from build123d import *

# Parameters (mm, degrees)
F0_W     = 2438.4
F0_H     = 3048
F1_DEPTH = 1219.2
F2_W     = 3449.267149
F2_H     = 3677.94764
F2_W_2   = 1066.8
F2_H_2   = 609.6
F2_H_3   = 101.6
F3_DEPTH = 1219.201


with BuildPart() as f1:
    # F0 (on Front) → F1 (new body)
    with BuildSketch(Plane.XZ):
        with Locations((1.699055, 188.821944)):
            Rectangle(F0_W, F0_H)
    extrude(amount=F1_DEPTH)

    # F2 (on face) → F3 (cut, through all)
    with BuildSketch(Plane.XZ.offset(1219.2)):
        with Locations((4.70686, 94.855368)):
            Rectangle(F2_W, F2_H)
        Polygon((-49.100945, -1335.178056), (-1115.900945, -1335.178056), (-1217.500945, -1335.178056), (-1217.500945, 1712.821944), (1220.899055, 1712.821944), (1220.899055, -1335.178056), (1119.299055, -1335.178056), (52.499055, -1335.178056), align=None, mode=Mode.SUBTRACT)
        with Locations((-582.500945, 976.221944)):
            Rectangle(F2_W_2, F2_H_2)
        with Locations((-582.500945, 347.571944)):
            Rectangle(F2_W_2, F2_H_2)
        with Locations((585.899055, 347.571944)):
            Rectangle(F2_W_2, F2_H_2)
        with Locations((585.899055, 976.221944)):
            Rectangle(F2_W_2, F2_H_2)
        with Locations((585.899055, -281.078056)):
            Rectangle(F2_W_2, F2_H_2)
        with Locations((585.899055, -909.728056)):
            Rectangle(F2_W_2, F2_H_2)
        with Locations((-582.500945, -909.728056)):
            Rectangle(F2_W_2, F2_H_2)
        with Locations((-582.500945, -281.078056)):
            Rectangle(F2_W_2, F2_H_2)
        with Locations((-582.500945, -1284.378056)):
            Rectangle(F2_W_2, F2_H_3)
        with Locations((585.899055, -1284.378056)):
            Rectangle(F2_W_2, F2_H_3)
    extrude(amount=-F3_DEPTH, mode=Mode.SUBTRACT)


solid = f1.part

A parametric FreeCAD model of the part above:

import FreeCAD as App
import Part
import Sketcher

V = App.Vector
Q = App.Units.Quantity

doc = App.newDocument("Part")
params = doc.addObject("Spreadsheet::Sheet", "Params")
for row, (alias, value) in enumerate([
    ("sketch1_width", "96 in"),
    ("sketch1_height", "120 in"),
    ("pad1_length", "48 in"),
    ("sketch2_width", "4 in"),
    ("sketch2_width2", "42 in"),
    ("sketch2_height", "120 in"),
    ("sketch2_height2", "24 in"),
], start=1):
    params.set(f"A{row}", alias)
    params.set(f"B{row}", "=" + value)
    params.setAlias(f"B{row}", alias)

body = doc.addObject("PartDesign::Body", "Body")

# Sketch on XZ plane
sketch1 = body.newObject("Sketcher::SketchObject", "Sketch")
sketch1.AttachmentSupport = (doc.getObject("XZ_Plane"), [""])
sketch1.MapMode = "FlatFace"
sketch1.addGeometry(Part.LineSegment(V(-1218, 1713, 0), V(-1218, -1335, 0)), False)
sketch1.addGeometry(Part.LineSegment(V(-1218, -1335, 0), V(1221, -1335, 0)), False)
sketch1.addGeometry(Part.LineSegment(V(1221, -1335, 0), V(1221, 1713, 0)), False)
sketch1.addGeometry(Part.LineSegment(V(1221, 1713, 0), V(-1218, 1713, 0)), False)
sketch1.addConstraint(Sketcher.Constraint("Coincident", 0, 2, 1, 1))
sketch1.addConstraint(Sketcher.Constraint("Coincident", 1, 2, 2, 1))
sketch1.addConstraint(Sketcher.Constraint("Coincident", 2, 2, 3, 1))
sketch1.addConstraint(Sketcher.Constraint("Coincident", 3, 2, 0, 1))
sketch1.addConstraint(Sketcher.Constraint("Vertical", 0))
sketch1.addConstraint(Sketcher.Constraint("Horizontal", 1))
sketch1.addConstraint(Sketcher.Constraint("Vertical", 2))
sketch1.addConstraint(Sketcher.Constraint("Horizontal", 3))
sketch1.addConstraint(Sketcher.Constraint("DistanceX", 1, 1, 1, 2, Q("96 in")))
sketch1.addConstraint(Sketcher.Constraint("DistanceY", 0, 2, 0, 1, Q("120 in")))
sketch1.addConstraint(Sketcher.Constraint("DistanceX", 0, 2, -1, 1, Q("1217.500945 mm")))
sketch1.addConstraint(Sketcher.Constraint("DistanceY", 0, 2, -1, 1, Q("1335.178056 mm")))
sketch1.setExpression("Constraints[8]", "Params.sketch1_width")
sketch1.setExpression("Constraints[9]", "Params.sketch1_height")
pad1 = body.newObject("PartDesign::Pad", "Pad")
pad1.Profile = sketch1
pad1.setExpression("Length", "Params.pad1_length")

# Sketch on XZ plane
sketch2 = body.newObject("Sketcher::SketchObject", "Sketch001")
sketch2.AttachmentSupport = (doc.getObject("XZ_Plane"), [""])
sketch2.MapMode = "FlatFace"
sketch2.AttachmentOffset = App.Placement(V(0, 0, 48 * 25.4), App.Rotation())
sketch2.addGeometry(Part.LineSegment(V(-1720, 1934, 0), V(-1720, -1744, 0)), False)
sketch2.addGeometry(Part.LineSegment(V(-1720, -1744, 0), V(1729, -1744, 0)), False)
sketch2.addGeometry(Part.LineSegment(V(1729, -1744, 0), V(1729, 1934, 0)), False)
sketch2.addGeometry(Part.LineSegment(V(1729, 1934, 0), V(-1720, 1934, 0)), False)
sketch2.addGeometry(Part.LineSegment(V(1221, -1335, 0), V(1119, -1335, 0)), False)
sketch2.addGeometry(Part.LineSegment(V(1119, -1335, 0), V(1119, -1234, 0)), False)
sketch2.addGeometry(Part.LineSegment(V(1119, -1234, 0), V(52, -1234, 0)), False)
sketch2.addGeometry(Part.LineSegment(V(52, -1234, 0), V(52, -1335, 0)), False)
sketch2.addGeometry(Part.LineSegment(V(52, -1335, 0), V(-49, -1335, 0)), False)
sketch2.addGeometry(Part.LineSegment(V(-49, -1335, 0), V(-49, -1234, 0)), False)
sketch2.addGeometry(Part.LineSegment(V(-49, -1234, 0), V(-1116, -1234, 0)), False)
sketch2.addGeometry(Part.LineSegment(V(-1116, -1234, 0), V(-1116, -1335, 0)), False)
sketch2.addGeometry(Part.LineSegment(V(-1116, -1335, 0), V(-1218, -1335, 0)), False)
sketch2.addGeometry(Part.LineSegment(V(-1218, -1335, 0), V(-1218, 1713, 0)), False)
sketch2.addGeometry(Part.LineSegment(V(-1218, 1713, 0), V(1221, 1713, 0)), False)
sketch2.addGeometry(Part.LineSegment(V(1221, 1713, 0), V(1221, -1335, 0)), False)
sketch2.addGeometry(Part.LineSegment(V(-1116, 1281, 0), V(-1116, 671, 0)), False)
sketch2.addGeometry(Part.LineSegment(V(-1116, 671, 0), V(-49, 671, 0)), False)
sketch2.addGeometry(Part.LineSegment(V(-49, 671, 0), V(-49, 1281, 0)), False)
sketch2.addGeometry(Part.LineSegment(V(-49, 1281, 0), V(-1116, 1281, 0)), False)
sketch2.addGeometry(Part.LineSegment(V(-1116, 652, 0), V(-1116, 43, 0)), False)
sketch2.addGeometry(Part.LineSegment(V(-1116, 43, 0), V(-49, 43, 0)), False)
sketch2.addGeometry(Part.LineSegment(V(-49, 43, 0), V(-49, 652, 0)), False)
sketch2.addGeometry(Part.LineSegment(V(-49, 652, 0), V(-1116, 652, 0)), False)
sketch2.addGeometry(Part.LineSegment(V(52, 652, 0), V(52, 43, 0)), False)
sketch2.addGeometry(Part.LineSegment(V(52, 43, 0), V(1119, 43, 0)), False)
sketch2.addGeometry(Part.LineSegment(V(1119, 43, 0), V(1119, 652, 0)), False)
sketch2.addGeometry(Part.LineSegment(V(1119, 652, 0), V(52, 652, 0)), False)
sketch2.addGeometry(Part.LineSegment(V(52, 1281, 0), V(52, 671, 0)), False)
sketch2.addGeometry(Part.LineSegment(V(52, 671, 0), V(1119, 671, 0)), False)
sketch2.addGeometry(Part.LineSegment(V(1119, 671, 0), V(1119, 1281, 0)), False)
sketch2.addGeometry(Part.LineSegment(V(1119, 1281, 0), V(52, 1281, 0)), False)
sketch2.addGeometry(Part.LineSegment(V(52, 24, 0), V(52, -586, 0)), False)
sketch2.addGeometry(Part.LineSegment(V(52, -586, 0), V(1119, -586, 0)), False)
sketch2.addGeometry(Part.LineSegment(V(1119, -586, 0), V(1119, 24, 0)), False)
sketch2.addGeometry(Part.LineSegment(V(1119, 24, 0), V(52, 24, 0)), False)
sketch2.addGeometry(Part.LineSegment(V(52, -605, 0), V(52, -1215, 0)), False)
sketch2.addGeometry(Part.LineSegment(V(52, -1215, 0), V(1119, -1215, 0)), False)
sketch2.addGeometry(Part.LineSegment(V(1119, -1215, 0), V(1119, -605, 0)), False)
sketch2.addGeometry(Part.LineSegment(V(1119, -605, 0), V(52, -605, 0)), False)
sketch2.addGeometry(Part.LineSegment(V(-1116, -605, 0), V(-1116, -1215, 0)), False)
sketch2.addGeometry(Part.LineSegment(V(-1116, -1215, 0), V(-49, -1215, 0)), False)
sketch2.addGeometry(Part.LineSegment(V(-49, -1215, 0), V(-49, -605, 0)), False)
sketch2.addGeometry(Part.LineSegment(V(-49, -605, 0), V(-1116, -605, 0)), False)
sketch2.addGeometry(Part.LineSegment(V(-1116, 24, 0), V(-1116, -586, 0)), False)
sketch2.addGeometry(Part.LineSegment(V(-1116, -586, 0), V(-49, -586, 0)), False)
sketch2.addGeometry(Part.LineSegment(V(-49, -586, 0), V(-49, 24, 0)), False)
sketch2.addGeometry(Part.LineSegment(V(-49, 24, 0), V(-1116, 24, 0)), False)
sketch2.addConstraint(Sketcher.Constraint("Coincident", 0, 2, 1, 1))
sketch2.addConstraint(Sketcher.Constraint("Coincident", 1, 2, 2, 1))
sketch2.addConstraint(Sketcher.Constraint("Coincident", 2, 2, 3, 1))
sketch2.addConstraint(Sketcher.Constraint("Coincident", 3, 2, 0, 1))
sketch2.addConstraint(Sketcher.Constraint("Coincident", 4, 2, 5, 1))
sketch2.addConstraint(Sketcher.Constraint("Coincident", 5, 2, 6, 1))
sketch2.addConstraint(Sketcher.Constraint("Coincident", 6, 2, 7, 1))
sketch2.addConstraint(Sketcher.Constraint("Coincident", 7, 2, 8, 1))
sketch2.addConstraint(Sketcher.Constraint("Coincident", 8, 2, 9, 1))
sketch2.addConstraint(Sketcher.Constraint("Coincident", 9, 2, 10, 1))
sketch2.addConstraint(Sketcher.Constraint("Coincident", 10, 2, 11, 1))
sketch2.addConstraint(Sketcher.Constraint("Coincident", 11, 2, 12, 1))
sketch2.addConstraint(Sketcher.Constraint("Coincident", 12, 2, 13, 1))
sketch2.addConstraint(Sketcher.Constraint("Coincident", 13, 2, 14, 1))
sketch2.addConstraint(Sketcher.Constraint("Coincident", 14, 2, 15, 1))
sketch2.addConstraint(Sketcher.Constraint("Coincident", 15, 2, 4, 1))
sketch2.addConstraint(Sketcher.Constraint("Coincident", 16, 2, 17, 1))
sketch2.addConstraint(Sketcher.Constraint("Coincident", 17, 2, 18, 1))
sketch2.addConstraint(Sketcher.Constraint("Coincident", 18, 2, 19, 1))
sketch2.addConstraint(Sketcher.Constraint("Coincident", 19, 2, 16, 1))
sketch2.addConstraint(Sketcher.Constraint("Coincident", 20, 2, 21, 1))
sketch2.addConstraint(Sketcher.Constraint("Coincident", 21, 2, 22, 1))
sketch2.addConstraint(Sketcher.Constraint("Coincident", 22, 2, 23, 1))
sketch2.addConstraint(Sketcher.Constraint("Coincident", 23, 2, 20, 1))
sketch2.addConstraint(Sketcher.Constraint("Coincident", 24, 2, 25, 1))
sketch2.addConstraint(Sketcher.Constraint("Coincident", 25, 2, 26, 1))
sketch2.addConstraint(Sketcher.Constraint("Coincident", 26, 2, 27, 1))
sketch2.addConstraint(Sketcher.Constraint("Coincident", 27, 2, 24, 1))
sketch2.addConstraint(Sketcher.Constraint("Coincident", 28, 2, 29, 1))
sketch2.addConstraint(Sketcher.Constraint("Coincident", 29, 2, 30, 1))
sketch2.addConstraint(Sketcher.Constraint("Coincident", 30, 2, 31, 1))
sketch2.addConstraint(Sketcher.Constraint("Coincident", 31, 2, 28, 1))
sketch2.addConstraint(Sketcher.Constraint("Coincident", 32, 2, 33, 1))
sketch2.addConstraint(Sketcher.Constraint("Coincident", 33, 2, 34, 1))
sketch2.addConstraint(Sketcher.Constraint("Coincident", 34, 2, 35, 1))
sketch2.addConstraint(Sketcher.Constraint("Coincident", 35, 2, 32, 1))
sketch2.addConstraint(Sketcher.Constraint("Coincident", 36, 2, 37, 1))
sketch2.addConstraint(Sketcher.Constraint("Coincident", 37, 2, 38, 1))
sketch2.addConstraint(Sketcher.Constraint("Coincident", 38, 2, 39, 1))
sketch2.addConstraint(Sketcher.Constraint("Coincident", 39, 2, 36, 1))
sketch2.addConstraint(Sketcher.Constraint("Coincident", 40, 2, 41, 1))
sketch2.addConstraint(Sketcher.Constraint("Coincident", 41, 2, 42, 1))
sketch2.addConstraint(Sketcher.Constraint("Coincident", 42, 2, 43, 1))
sketch2.addConstraint(Sketcher.Constraint("Coincident", 43, 2, 40, 1))
sketch2.addConstraint(Sketcher.Constraint("Coincident", 44, 2, 45, 1))
sketch2.addConstraint(Sketcher.Constraint("Coincident", 45, 2, 46, 1))
sketch2.addConstraint(Sketcher.Constraint("Coincident", 46, 2, 47, 1))
sketch2.addConstraint(Sketcher.Constraint("Coincident", 47, 2, 44, 1))
sketch2.addConstraint(Sketcher.Constraint("Vertical", 0))
sketch2.addConstraint(Sketcher.Constraint("Horizontal", 1))
sketch2.addConstraint(Sketcher.Constraint("Vertical", 2))
sketch2.addConstraint(Sketcher.Constraint("Horizontal", 3))
sketch2.addConstraint(Sketcher.Constraint("Horizontal", 4))
sketch2.addConstraint(Sketcher.Constraint("Vertical", 5))
sketch2.addConstraint(Sketcher.Constraint("Horizontal", 6))
sketch2.addConstraint(Sketcher.Constraint("Vertical", 7))
sketch2.addConstraint(Sketcher.Constraint("Horizontal", 8))
sketch2.addConstraint(Sketcher.Constraint("Vertical", 9))
sketch2.addConstraint(Sketcher.Constraint("Horizontal", 10))
sketch2.addConstraint(Sketcher.Constraint("Vertical", 11))
sketch2.addConstraint(Sketcher.Constraint("Horizontal", 12))
sketch2.addConstraint(Sketcher.Constraint("Vertical", 13))
sketch2.addConstraint(Sketcher.Constraint("Horizontal", 14))
sketch2.addConstraint(Sketcher.Constraint("Vertical", 15))
sketch2.addConstraint(Sketcher.Constraint("Vertical", 16))
sketch2.addConstraint(Sketcher.Constraint("Horizontal", 17))
sketch2.addConstraint(Sketcher.Constraint("Vertical", 18))
sketch2.addConstraint(Sketcher.Constraint("Horizontal", 19))
sketch2.addConstraint(Sketcher.Constraint("Vertical", 20))
sketch2.addConstraint(Sketcher.Constraint("Horizontal", 21))
sketch2.addConstraint(Sketcher.Constraint("Vertical", 22))
sketch2.addConstraint(Sketcher.Constraint("Horizontal", 23))
sketch2.addConstraint(Sketcher.Constraint("Vertical", 24))
sketch2.addConstraint(Sketcher.Constraint("Horizontal", 25))
sketch2.addConstraint(Sketcher.Constraint("Vertical", 26))
sketch2.addConstraint(Sketcher.Constraint("Horizontal", 27))
sketch2.addConstraint(Sketcher.Constraint("Vertical", 28))
sketch2.addConstraint(Sketcher.Constraint("Horizontal", 29))
sketch2.addConstraint(Sketcher.Constraint("Vertical", 30))
sketch2.addConstraint(Sketcher.Constraint("Horizontal", 31))
sketch2.addConstraint(Sketcher.Constraint("Vertical", 32))
sketch2.addConstraint(Sketcher.Constraint("Horizontal", 33))
sketch2.addConstraint(Sketcher.Constraint("Vertical", 34))
sketch2.addConstraint(Sketcher.Constraint("Horizontal", 35))
sketch2.addConstraint(Sketcher.Constraint("Vertical", 36))
sketch2.addConstraint(Sketcher.Constraint("Horizontal", 37))
sketch2.addConstraint(Sketcher.Constraint("Vertical", 38))
sketch2.addConstraint(Sketcher.Constraint("Horizontal", 39))
sketch2.addConstraint(Sketcher.Constraint("Vertical", 40))
sketch2.addConstraint(Sketcher.Constraint("Horizontal", 41))
sketch2.addConstraint(Sketcher.Constraint("Vertical", 42))
sketch2.addConstraint(Sketcher.Constraint("Horizontal", 43))
sketch2.addConstraint(Sketcher.Constraint("Vertical", 44))
sketch2.addConstraint(Sketcher.Constraint("Horizontal", 45))
sketch2.addConstraint(Sketcher.Constraint("Vertical", 46))
sketch2.addConstraint(Sketcher.Constraint("Horizontal", 47))
sketch2.addConstraint(Sketcher.Constraint("Horizontal", 4, 2, 7, 2))
sketch2.addConstraint(Sketcher.Constraint("Horizontal", 6, 2, 9, 2))
sketch2.addConstraint(Sketcher.Constraint("Horizontal", 8, 2, 11, 2))
sketch2.addConstraint(Sketcher.Constraint("Horizontal", 21, 2, 24, 2))
sketch2.addConstraint(Sketcher.Constraint("Horizontal", 23, 2, 26, 2))
sketch2.addConstraint(Sketcher.Constraint("Horizontal", 17, 2, 28, 2))
sketch2.addConstraint(Sketcher.Constraint("Horizontal", 19, 2, 30, 2))
sketch2.addConstraint(Sketcher.Constraint("Horizontal", 37, 2, 40, 2))
sketch2.addConstraint(Sketcher.Constraint("Horizontal", 39, 2, 42, 2))
sketch2.addConstraint(Sketcher.Constraint("Horizontal", 33, 2, 44, 2))
sketch2.addConstraint(Sketcher.Constraint("Horizontal", 35, 2, 46, 2))
sketch2.addConstraint(Sketcher.Constraint("Vertical", 11, 2, 16, 2))
sketch2.addConstraint(Sketcher.Constraint("Vertical", 9, 2, 17, 2))
sketch2.addConstraint(Sketcher.Constraint("Vertical", 19, 2, 20, 2))
sketch2.addConstraint(Sketcher.Constraint("Vertical", 18, 2, 21, 2))
sketch2.addConstraint(Sketcher.Constraint("Vertical", 7, 2, 24, 2))
sketch2.addConstraint(Sketcher.Constraint("Vertical", 5, 2, 25, 2))
sketch2.addConstraint(Sketcher.Constraint("Vertical", 27, 2, 28, 2))
sketch2.addConstraint(Sketcher.Constraint("Vertical", 26, 2, 29, 2))
sketch2.addConstraint(Sketcher.Constraint("Vertical", 31, 2, 32, 2))
sketch2.addConstraint(Sketcher.Constraint("Vertical", 30, 2, 33, 2))
sketch2.addConstraint(Sketcher.Constraint("Vertical", 35, 2, 36, 2))
sketch2.addConstraint(Sketcher.Constraint("Vertical", 34, 2, 37, 2))
sketch2.addConstraint(Sketcher.Constraint("Vertical", 23, 2, 40, 2))
sketch2.addConstraint(Sketcher.Constraint("Vertical", 22, 2, 41, 2))
sketch2.addConstraint(Sketcher.Constraint("Vertical", 43, 2, 44, 2))
sketch2.addConstraint(Sketcher.Constraint("Vertical", 42, 2, 45, 2))
sketch2.addConstraint(Sketcher.Constraint("Equal", 4, 8))
sketch2.addConstraint(Sketcher.Constraint("Equal", 6, 10))
sketch2.addConstraint(Sketcher.Constraint("Equal", 8, 12))
sketch2.addConstraint(Sketcher.Constraint("Equal", 12, 5))
sketch2.addConstraint(Sketcher.Constraint("Equal", 18, 20))
sketch2.addConstraint(Sketcher.Constraint("Equal", 30, 32))
sketch2.addConstraint(Sketcher.Constraint("Equal", 34, 36))
sketch2.addConstraint(Sketcher.Constraint("DistanceX", 4, 2, 4, 1, Q("4 in")))
sketch2.addConstraint(Sketcher.Constraint("DistanceX", 6, 2, 6, 1, Q("42 in")))
sketch2.addConstraint(Sketcher.Constraint("DistanceY", 13, 1, 13, 2, Q("120 in")))
sketch2.addConstraint(Sketcher.Constraint("DistanceY", 16, 2, 16, 1, Q("24 in")))
sketch2.addConstraint(Sketcher.Constraint("DistanceY", 16, 2, 13, 2, Q("41 in")))
sketch2.addConstraint(Sketcher.Constraint("DistanceY", 6, 2, 32, 2, Q("25.5 in")))
sketch2.addConstraint(Sketcher.Constraint("DistanceY", 38, 2, 25, 2, Q("25.5 in")))
sketch2.addConstraint(Sketcher.Constraint("DistanceY", 20, 2, 16, 2, Q("24.75 in")))
sketch2.addConstraint(Sketcher.Constraint("DistanceX", 1, 1, 1, 2, Q("3449.267149 mm")))
sketch2.addConstraint(Sketcher.Constraint("DistanceY", 0, 2, 0, 1, Q("3677.94764 mm")))
sketch2.addConstraint(Sketcher.Constraint("DistanceY", 0, 2, -1, 1, Q("1744.118452 mm")))
sketch2.addConstraint(Sketcher.Constraint("DistanceX", 4, 2, 1, 2, Q("610.041379 mm")))
sketch2.addConstraint(Sketcher.Constraint("DistanceX", 0, 2, -1, 1, Q("1719.926714 mm")))
sketch2.addConstraint(Sketcher.Constraint("DistanceY", 4, 2, -1, 1, Q("1335.178056 mm")))
sketch2.setExpression("Constraints[130]", "Params.sketch2_width")
sketch2.setExpression("Constraints[131]", "Params.sketch2_width2")
sketch2.setExpression("Constraints[132]", "Params.sketch2_height")
sketch2.setExpression("Constraints[133]", "Params.sketch2_height2")
pocket1 = body.newObject("PartDesign::Pocket", "Pocket")
pocket1.Profile = sketch2
pocket1.Type = "ThroughAll"

doc.recompute()
